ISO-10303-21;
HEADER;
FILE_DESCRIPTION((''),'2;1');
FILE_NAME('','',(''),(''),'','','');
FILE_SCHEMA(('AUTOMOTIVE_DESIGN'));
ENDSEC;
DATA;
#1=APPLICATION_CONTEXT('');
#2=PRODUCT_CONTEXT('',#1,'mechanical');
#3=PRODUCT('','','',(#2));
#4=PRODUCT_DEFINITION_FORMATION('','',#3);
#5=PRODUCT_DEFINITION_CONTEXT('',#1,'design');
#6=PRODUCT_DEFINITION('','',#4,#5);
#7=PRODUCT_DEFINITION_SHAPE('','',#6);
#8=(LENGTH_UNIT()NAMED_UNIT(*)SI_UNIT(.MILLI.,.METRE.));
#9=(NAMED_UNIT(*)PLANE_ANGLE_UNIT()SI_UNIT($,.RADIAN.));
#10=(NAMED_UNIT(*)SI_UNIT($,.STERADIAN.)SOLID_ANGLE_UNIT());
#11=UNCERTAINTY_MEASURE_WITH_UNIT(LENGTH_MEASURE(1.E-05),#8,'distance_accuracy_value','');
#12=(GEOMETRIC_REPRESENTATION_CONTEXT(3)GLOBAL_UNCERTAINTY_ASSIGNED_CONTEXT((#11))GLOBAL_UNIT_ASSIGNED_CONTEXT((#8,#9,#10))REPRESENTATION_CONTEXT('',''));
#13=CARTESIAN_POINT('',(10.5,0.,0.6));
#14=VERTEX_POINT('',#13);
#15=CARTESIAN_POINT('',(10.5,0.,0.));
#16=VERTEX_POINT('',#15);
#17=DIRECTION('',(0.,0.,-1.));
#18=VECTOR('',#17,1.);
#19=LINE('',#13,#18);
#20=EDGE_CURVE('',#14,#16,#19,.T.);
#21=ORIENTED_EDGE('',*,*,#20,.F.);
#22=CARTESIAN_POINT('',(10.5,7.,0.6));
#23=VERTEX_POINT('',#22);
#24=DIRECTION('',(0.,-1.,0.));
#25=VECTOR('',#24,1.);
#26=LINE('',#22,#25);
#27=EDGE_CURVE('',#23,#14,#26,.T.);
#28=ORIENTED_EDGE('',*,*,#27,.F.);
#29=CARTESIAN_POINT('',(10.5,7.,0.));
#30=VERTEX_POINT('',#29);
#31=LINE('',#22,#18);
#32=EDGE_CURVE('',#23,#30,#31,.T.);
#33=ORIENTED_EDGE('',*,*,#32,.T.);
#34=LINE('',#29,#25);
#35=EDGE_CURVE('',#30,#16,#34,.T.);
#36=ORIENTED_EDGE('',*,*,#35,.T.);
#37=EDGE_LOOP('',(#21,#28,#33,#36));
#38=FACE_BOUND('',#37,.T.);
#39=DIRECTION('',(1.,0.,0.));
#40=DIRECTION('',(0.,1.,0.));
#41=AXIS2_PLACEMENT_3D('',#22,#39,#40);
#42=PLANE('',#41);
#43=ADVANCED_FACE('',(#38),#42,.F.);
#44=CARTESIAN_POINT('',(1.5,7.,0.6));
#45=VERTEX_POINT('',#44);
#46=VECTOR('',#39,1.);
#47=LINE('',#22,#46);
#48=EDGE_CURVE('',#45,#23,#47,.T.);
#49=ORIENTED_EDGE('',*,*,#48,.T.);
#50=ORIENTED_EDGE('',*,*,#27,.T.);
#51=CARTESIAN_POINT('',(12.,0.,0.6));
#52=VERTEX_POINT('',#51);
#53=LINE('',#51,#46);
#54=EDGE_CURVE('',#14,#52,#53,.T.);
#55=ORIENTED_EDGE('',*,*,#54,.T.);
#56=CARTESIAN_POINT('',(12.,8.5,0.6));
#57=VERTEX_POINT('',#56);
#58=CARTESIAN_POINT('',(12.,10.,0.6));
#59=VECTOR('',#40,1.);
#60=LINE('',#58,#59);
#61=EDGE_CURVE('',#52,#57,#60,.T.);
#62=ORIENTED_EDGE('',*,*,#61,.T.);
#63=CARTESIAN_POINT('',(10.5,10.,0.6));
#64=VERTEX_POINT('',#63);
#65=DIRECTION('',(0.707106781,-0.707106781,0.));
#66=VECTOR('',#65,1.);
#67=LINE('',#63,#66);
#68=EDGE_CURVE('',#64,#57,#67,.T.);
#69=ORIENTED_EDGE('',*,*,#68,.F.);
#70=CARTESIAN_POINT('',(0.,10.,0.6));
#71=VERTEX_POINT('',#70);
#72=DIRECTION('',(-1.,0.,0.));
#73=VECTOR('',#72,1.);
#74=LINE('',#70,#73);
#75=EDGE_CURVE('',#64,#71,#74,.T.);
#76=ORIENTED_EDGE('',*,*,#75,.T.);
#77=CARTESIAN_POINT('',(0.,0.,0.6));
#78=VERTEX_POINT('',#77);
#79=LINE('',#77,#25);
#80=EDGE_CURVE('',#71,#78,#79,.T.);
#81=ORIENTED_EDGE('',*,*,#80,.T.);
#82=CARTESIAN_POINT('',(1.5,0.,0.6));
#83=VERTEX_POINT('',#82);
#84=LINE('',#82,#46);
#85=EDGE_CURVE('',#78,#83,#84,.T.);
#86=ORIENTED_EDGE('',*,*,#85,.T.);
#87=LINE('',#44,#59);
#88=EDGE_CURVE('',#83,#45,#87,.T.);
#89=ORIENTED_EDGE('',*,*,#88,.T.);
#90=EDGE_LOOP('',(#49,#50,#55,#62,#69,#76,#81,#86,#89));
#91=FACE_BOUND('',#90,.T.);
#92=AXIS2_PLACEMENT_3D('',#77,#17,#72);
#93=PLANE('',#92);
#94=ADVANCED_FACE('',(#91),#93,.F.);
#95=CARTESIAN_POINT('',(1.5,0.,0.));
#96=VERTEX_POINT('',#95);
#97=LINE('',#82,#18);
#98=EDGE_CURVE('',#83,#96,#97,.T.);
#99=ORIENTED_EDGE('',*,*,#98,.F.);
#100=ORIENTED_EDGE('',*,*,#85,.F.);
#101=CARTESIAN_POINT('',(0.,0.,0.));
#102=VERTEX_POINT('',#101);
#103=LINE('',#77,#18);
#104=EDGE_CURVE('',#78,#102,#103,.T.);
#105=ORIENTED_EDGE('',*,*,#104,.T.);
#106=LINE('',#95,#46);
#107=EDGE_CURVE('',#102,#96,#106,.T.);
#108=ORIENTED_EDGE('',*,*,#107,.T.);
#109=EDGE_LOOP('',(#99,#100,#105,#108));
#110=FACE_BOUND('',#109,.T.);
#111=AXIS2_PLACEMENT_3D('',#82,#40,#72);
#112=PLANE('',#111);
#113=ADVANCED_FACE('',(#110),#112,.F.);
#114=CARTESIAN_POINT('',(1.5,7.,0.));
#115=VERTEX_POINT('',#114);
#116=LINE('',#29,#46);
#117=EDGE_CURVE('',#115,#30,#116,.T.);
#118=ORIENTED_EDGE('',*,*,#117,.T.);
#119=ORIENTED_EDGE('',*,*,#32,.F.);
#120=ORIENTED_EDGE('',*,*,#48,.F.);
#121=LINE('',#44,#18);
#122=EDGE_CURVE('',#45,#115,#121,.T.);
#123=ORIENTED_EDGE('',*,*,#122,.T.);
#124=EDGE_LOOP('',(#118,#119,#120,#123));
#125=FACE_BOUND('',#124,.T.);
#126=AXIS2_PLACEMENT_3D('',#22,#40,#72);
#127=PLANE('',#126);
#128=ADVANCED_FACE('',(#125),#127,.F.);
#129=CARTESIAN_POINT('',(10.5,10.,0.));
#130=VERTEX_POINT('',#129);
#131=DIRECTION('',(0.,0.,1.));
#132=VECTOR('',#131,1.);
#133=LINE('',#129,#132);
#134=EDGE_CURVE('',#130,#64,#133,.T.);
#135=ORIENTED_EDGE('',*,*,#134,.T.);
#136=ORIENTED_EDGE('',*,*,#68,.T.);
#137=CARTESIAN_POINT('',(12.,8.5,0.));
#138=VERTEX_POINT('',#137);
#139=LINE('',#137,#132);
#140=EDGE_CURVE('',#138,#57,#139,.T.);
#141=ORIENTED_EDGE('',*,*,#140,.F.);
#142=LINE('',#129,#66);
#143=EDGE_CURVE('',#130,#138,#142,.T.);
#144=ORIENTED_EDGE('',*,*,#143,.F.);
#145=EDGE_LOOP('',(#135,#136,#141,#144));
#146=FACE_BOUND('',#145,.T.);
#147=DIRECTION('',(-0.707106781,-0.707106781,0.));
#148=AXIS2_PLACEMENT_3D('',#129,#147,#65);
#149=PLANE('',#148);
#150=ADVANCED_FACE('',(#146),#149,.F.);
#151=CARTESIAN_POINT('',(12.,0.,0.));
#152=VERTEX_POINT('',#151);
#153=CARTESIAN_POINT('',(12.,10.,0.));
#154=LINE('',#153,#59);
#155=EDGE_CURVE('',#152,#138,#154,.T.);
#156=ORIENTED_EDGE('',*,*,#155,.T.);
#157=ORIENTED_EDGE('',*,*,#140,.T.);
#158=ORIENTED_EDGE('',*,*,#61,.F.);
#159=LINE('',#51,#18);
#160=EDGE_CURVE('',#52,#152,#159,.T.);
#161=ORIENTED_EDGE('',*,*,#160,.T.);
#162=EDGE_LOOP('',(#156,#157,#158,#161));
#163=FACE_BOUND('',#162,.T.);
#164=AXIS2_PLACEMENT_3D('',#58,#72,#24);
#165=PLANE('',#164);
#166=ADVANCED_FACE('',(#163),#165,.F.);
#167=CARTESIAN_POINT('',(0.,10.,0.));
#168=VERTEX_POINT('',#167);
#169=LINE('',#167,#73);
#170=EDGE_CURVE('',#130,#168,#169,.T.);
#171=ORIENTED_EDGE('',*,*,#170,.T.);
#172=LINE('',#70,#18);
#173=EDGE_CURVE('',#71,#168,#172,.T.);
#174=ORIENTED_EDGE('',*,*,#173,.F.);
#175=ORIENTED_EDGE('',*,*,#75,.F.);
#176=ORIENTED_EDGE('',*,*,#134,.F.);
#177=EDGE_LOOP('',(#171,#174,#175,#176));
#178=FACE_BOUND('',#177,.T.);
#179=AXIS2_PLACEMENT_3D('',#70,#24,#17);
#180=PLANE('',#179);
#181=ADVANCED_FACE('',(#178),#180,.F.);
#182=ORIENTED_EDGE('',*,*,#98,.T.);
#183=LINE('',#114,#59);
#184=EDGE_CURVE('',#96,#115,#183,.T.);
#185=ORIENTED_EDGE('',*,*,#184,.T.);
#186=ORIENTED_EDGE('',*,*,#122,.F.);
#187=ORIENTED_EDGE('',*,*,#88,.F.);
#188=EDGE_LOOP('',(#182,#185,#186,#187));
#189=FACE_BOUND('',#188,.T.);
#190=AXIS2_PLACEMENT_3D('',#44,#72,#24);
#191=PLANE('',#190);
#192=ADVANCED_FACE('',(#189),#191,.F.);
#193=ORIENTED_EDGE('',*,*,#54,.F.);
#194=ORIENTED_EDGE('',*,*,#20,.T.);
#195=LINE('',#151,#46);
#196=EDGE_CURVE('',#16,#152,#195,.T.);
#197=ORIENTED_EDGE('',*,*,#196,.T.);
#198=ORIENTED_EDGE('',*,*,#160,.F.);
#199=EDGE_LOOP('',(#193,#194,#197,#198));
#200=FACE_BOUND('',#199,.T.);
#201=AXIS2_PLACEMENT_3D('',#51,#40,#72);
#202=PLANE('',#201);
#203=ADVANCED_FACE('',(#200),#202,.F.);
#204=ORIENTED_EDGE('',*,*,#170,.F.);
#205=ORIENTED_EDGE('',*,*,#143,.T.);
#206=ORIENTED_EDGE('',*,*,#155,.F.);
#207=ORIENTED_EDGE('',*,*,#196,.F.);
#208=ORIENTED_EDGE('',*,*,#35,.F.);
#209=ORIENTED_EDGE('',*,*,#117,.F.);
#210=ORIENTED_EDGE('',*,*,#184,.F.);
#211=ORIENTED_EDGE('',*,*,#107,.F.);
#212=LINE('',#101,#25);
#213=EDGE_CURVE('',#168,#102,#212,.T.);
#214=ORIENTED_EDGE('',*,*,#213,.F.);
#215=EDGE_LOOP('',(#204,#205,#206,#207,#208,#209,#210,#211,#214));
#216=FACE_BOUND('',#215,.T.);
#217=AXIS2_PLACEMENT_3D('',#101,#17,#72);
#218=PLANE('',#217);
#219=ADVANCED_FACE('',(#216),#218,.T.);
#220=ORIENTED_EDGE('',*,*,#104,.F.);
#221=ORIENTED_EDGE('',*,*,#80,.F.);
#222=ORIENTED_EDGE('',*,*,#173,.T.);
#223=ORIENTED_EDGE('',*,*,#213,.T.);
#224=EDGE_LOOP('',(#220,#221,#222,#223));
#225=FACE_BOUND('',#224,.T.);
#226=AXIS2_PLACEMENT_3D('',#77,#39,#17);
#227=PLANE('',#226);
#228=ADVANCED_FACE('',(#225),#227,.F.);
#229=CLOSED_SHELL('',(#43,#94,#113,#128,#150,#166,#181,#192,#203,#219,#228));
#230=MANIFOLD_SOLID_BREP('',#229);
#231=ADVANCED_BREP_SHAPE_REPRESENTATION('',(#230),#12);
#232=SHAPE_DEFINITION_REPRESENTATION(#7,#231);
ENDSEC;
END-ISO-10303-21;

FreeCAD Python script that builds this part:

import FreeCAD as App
import Part
import Sketcher
Q = App.Units.Quantity


def add_polygon(sketch, points):
    """Adds a closed chain of lines whose ends are joined by coincident constraints."""
    first, n = sketch.GeometryCount, len(points)
    for a, b in zip(points, points[1:] + points[:1]):
        sketch.addGeometry(Part.LineSegment(App.Vector(*a, 0), App.Vector(*b, 0)), False)
    for i in range(n):
        sketch.addConstraint(Sketcher.Constraint("Coincident", first + i, 2, first + (i + 1) % n, 1))

doc = App.newDocument("Part")
body = doc.addObject("PartDesign::Body", "Body")

sketch1 = body.newObject("Sketcher::SketchObject", "Sketch")
sketch1.AttachmentSupport = (doc.getObject("XY_Plane"), [""])
sketch1.MapMode = "FlatFace"
add_polygon(sketch1, [(0, 10), (0, 0), (1.5, 0), (1.5, 7), (10.5, 7), (10.5, 0), (12, 0), (12, 10)])
sketch1.addConstraint([
    Sketcher.Constraint("Vertical", 0),
    Sketcher.Constraint("Horizontal", 1),
    Sketcher.Constraint("Vertical", 2),
    Sketcher.Constraint("Horizontal", 3),
    Sketcher.Constraint("Vertical", 4),
    Sketcher.Constraint("Horizontal", 5),
    Sketcher.Constraint("Vertical", 6),
    Sketcher.Constraint("Horizontal", 7),
    Sketcher.Constraint("Coincident", 0, 2, -1, 1),
    Sketcher.Constraint("PointOnObject", 4, 2, -1),
    Sketcher.Constraint("Equal", 1, 5),
    Sketcher.Constraint("DistanceX", 3, 1, 3, 2, Q("9 mm")),
    Sketcher.Constraint("DistanceX", 7, 2, 7, 1, Q("12 mm")),
    Sketcher.Constraint("DistanceY", 0, 2, 0, 1, Q("10 mm")),
    Sketcher.Constraint("DistanceY", 2, 1, 2, 2, Q("7 mm")),
])
pad1 = body.newObject("PartDesign::Pad", "Pad")
pad1.Profile = sketch1
pad1.Length = 0.6

sketch2 = body.newObject("Sketcher::SketchObject", "Sketch001")
sketch2.AttachmentSupport = (doc.getObject("XY_Plane"), [""])
sketch2.MapMode = "FlatFace"
sketch2.AttachmentOffset = App.Placement(App.Vector(0, 0, 0.6), App.Rotation())
add_polygon(sketch2, [(10.5, 10), (12, 8.5), (12, 10)])
sketch2.addConstraint([
    Sketcher.Constraint("Vertical", 1),
    Sketcher.Constraint("Horizontal", 2),
    Sketcher.Constraint("Equal", 2, 1),
    Sketcher.Constraint("DistanceX", 2, 2, 2, 1, Q("1.5 mm")),
    Sketcher.Constraint("DistanceX", -1, 1, 0, 2, Q("12 mm")),
    Sketcher.Constraint("DistanceY", -1, 1, 1, 2, Q("10 mm")),
])
pocket1 = body.newObject("PartDesign::Pocket", "Pocket")
pocket1.Profile = sketch2
pocket1.Type = "ThroughAll"

doc.recompute()
